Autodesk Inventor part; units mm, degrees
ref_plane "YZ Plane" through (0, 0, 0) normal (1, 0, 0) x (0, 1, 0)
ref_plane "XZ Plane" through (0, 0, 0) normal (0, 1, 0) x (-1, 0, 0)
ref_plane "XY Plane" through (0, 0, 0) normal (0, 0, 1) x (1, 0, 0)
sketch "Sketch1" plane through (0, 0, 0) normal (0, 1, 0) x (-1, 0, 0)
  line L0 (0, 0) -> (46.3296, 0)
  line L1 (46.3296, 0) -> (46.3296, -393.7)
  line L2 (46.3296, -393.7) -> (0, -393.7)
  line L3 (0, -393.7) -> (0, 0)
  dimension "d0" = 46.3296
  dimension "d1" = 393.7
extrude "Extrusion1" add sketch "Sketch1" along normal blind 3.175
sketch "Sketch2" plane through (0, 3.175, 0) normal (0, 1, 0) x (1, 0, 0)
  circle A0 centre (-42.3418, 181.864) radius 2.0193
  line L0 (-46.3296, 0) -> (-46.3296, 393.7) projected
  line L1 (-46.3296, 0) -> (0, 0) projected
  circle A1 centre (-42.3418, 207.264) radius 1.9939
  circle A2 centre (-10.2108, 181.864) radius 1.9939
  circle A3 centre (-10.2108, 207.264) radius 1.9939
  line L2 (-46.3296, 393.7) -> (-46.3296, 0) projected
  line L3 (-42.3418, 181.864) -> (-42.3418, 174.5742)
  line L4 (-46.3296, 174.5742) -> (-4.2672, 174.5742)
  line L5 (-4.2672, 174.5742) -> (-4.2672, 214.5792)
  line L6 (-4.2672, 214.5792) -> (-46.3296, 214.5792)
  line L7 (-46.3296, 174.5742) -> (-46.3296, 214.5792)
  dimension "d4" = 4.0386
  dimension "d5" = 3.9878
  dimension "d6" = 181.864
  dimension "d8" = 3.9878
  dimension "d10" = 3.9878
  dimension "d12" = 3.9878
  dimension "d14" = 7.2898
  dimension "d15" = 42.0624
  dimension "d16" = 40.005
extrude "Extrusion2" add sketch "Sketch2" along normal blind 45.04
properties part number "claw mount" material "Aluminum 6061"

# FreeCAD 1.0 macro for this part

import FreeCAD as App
import Part
import Sketcher
Q = App.Units.Quantity


def add_polygon(sketch, points):
    """Adds a closed chain of lines whose ends are joined by coincident constraints."""
    first, n = sketch.GeometryCount, len(points)
    for a, b in zip(points, points[1:] + points[:1]):
        sketch.addGeometry(Part.LineSegment(App.Vector(*a, 0), App.Vector(*b, 0)), False)
    for i in range(n):
        sketch.addConstraint(Sketcher.Constraint("Coincident", first + i, 2, first + (i + 1) % n, 1))

doc = App.newDocument("Part")
body = doc.addObject("PartDesign::Body", "Body")

# Sketch on XZ plane
sketch1 = body.newObject("Sketcher::SketchObject", "Sketch")
sketch1.AttachmentSupport = (doc.getObject("XZ_Plane"), [""])
sketch1.MapMode = "FlatFace"
add_polygon(sketch1, [(-46, 0), (0, 0), (0, -394), (-46, -394)])  # lines 0-3
sketch1.addConstraint(Sketcher.Constraint("Horizontal", 0))
sketch1.addConstraint(Sketcher.Constraint("Vertical", 1))
sketch1.addConstraint(Sketcher.Constraint("Horizontal", 2))
sketch1.addConstraint(Sketcher.Constraint("Vertical", 3))
sketch1.addConstraint(Sketcher.Constraint("Coincident", 0, 2, -1, 1))
sketch1.addConstraint(Sketcher.Constraint("DistanceY", 1, 2, 1, 1, Q("15.5 in")))
sketch1.addConstraint(Sketcher.Constraint("DistanceX", 0, 1, 0, 2, Q("1.824 in")))
pad1 = body.newObject("PartDesign::Pad", "Pad")
pad1.Profile = sketch1
pad1.Length = Q("0.125 in")
pad1.Reversed = True

# Sketch on XZ plane
sketch2 = body.newObject("Sketcher::SketchObject", "Sketch001")
sketch2.AttachmentSupport = (doc.getObject("XZ_Plane"), [""])
sketch2.MapMode = "FlatFace"
sketch2.AttachmentOffset = App.Placement(App.Vector(0, 0, -0.125 * 25.4), App.Rotation())
add_polygon(sketch2, [(-46.3, -174.6), (-42.3, -174.6), (-4.3, -174.6), (-4.3, -214.6), (-46.3, -214.6)])  # lines 0-4
sketch2.addGeometry(Part.Circle(App.Vector(-42.3, -181.9, 0), App.Vector(0, 0, 1), 2), False)  # 5
sketch2.addGeometry(Part.Circle(App.Vector(-10.2, -181.9, 0), App.Vector(0, 0, 1), 2), False)  # 6
sketch2.addGeometry(Part.Circle(App.Vector(-42.3, -207.3, 0), App.Vector(0, 0, 1), 2), False)  # 7
sketch2.addGeometry(Part.Circle(App.Vector(-10.2, -207.3, 0), App.Vector(0, 0, 1), 2), False)  # 8
sketch2.addConstraint(Sketcher.Constraint("Horizontal", 0))
sketch2.addConstraint(Sketcher.Constraint("Horizontal", 1))
sketch2.addConstraint(Sketcher.Constraint("Vertical", 2))
sketch2.addConstraint(Sketcher.Constraint("Horizontal", 3))
sketch2.addConstraint(Sketcher.Constraint("Vertical", 4))
sketch2.addConstraint(Sketcher.Constraint("Equal", 6, 7))
sketch2.addConstraint(Sketcher.Constraint("Equal", 7, 8))
sketch2.addConstraint(Sketcher.Constraint("Horizontal", 5, 3, 6, 3))
sketch2.addConstraint(Sketcher.Constraint("Horizontal", 7, 3, 8, 3))
sketch2.addConstraint(Sketcher.Constraint("Vertical", 5, 3, 7, 3))
sketch2.addConstraint(Sketcher.Constraint("Vertical", 6, 3, 8, 3))
sketch2.addConstraint(Sketcher.Constraint("Vertical", 7, 3, 0, 2))
sketch2.addConstraint(Sketcher.Constraint("Diameter", 5, Q("0.159 in")))
sketch2.addConstraint(Sketcher.Constraint("Diameter", 6, Q("0.157 in")))
sketch2.addConstraint(Sketcher.Constraint("DistanceX", 0, 1, 0, 2, Q("0.157 in")))
sketch2.addConstraint(Sketcher.Constraint("DistanceX", 3, 2, 3, 1, Q("1.656 in")))
sketch2.addConstraint(Sketcher.Constraint("DistanceY", 2, 2, 2, 1, Q("1.575 in")))
sketch2.addConstraint(Sketcher.Constraint("DistanceY", 5, 3, -1, 1, Q("7.16 in")))
sketch2.addConstraint(Sketcher.Constraint("DistanceY", 7, 3, 5, 3, Q("1 in")))
sketch2.addConstraint(Sketcher.Constraint("DistanceY", 5, 3, 0, 2, Q("0.287 in")))
sketch2.addConstraint(Sketcher.Constraint("DistanceX", 5, 3, -1, 1, Q("1.667 in")))
sketch2.addConstraint(Sketcher.Constraint("DistanceX", 6, 3, -1, 1, Q("0.402 in")))
pad2 = body.newObject("PartDesign::Pad", "Pad001")
pad2.Profile = sketch2
pad2.Length = 45.04
pad2.Reversed = True

doc.recompute()
